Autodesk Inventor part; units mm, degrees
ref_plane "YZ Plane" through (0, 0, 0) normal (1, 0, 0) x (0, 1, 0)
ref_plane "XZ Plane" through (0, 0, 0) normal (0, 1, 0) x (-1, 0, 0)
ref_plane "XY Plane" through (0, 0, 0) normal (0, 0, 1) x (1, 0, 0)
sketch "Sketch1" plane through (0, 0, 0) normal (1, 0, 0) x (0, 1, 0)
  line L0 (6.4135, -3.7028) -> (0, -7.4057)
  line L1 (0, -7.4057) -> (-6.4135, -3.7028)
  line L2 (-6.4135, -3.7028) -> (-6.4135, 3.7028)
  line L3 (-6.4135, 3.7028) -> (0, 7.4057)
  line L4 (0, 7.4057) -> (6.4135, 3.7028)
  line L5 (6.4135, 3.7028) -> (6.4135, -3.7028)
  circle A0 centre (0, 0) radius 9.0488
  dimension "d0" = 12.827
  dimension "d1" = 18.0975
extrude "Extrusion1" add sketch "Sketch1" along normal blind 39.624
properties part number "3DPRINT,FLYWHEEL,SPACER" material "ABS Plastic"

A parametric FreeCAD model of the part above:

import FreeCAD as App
import Part
import Sketcher
from FreeCAD import Vector
Q = App.Units.Quantity

doc = App.newDocument("Part")
body = doc.addObject("PartDesign::Body", "Body")

# Sketch on YZ plane
sketch1 = doc.addObject("Sketcher::SketchObject", "Sketch")
body.addObject(sketch1)
sketch1.AttachmentSupport = (doc.YZ_Plane, [""])
sketch1.MapMode = "FlatFace"
sketch1.addGeometry([
    Part.Circle(Vector(0, 0, 0), Vector(0, 0, 1), 9),  # 0
    Part.LineSegment(Vector(6, 4, 0), Vector(6, -4, 0)),  # 1
    Part.LineSegment(Vector(6, -4, 0), Vector(0, -7, 0)),  # 2
    Part.LineSegment(Vector(0, -7, 0), Vector(-6, -4, 0)),  # 3
    Part.LineSegment(Vector(-6, -4, 0), Vector(-6, 4, 0)),  # 4
    Part.LineSegment(Vector(-6, 4, 0), Vector(0, 7, 0)),  # 5
    Part.LineSegment(Vector(0, 7, 0), Vector(6, 4, 0)),  # 6
], False)
sketch1.addConstraint([
    Sketcher.Constraint("Coincident", 1, 2, 2, 1),
    Sketcher.Constraint("Coincident", 2, 2, 3, 1),
    Sketcher.Constraint("Coincident", 3, 2, 4, 1),
    Sketcher.Constraint("Coincident", 4, 2, 5, 1),
    Sketcher.Constraint("Coincident", 5, 2, 6, 1),
    Sketcher.Constraint("Coincident", 6, 2, 1, 1),
    Sketcher.Constraint("Vertical", 1),
    Sketcher.Constraint("Vertical", 4),
    Sketcher.Constraint("Coincident", 0, 3, -1, 1),
    Sketcher.Constraint("Symmetric", 1, 2, 4, 2, -1, 1),
    Sketcher.Constraint("Symmetric", 2, 2, 5, 2, -1, 1),
    Sketcher.Constraint("PointOnObject", 2, 2, -2),
    Sketcher.Constraint("Parallel", 3, 6),
    Sketcher.Constraint("Horizontal", 1, 2, 3, 2),
    Sketcher.Constraint("Diameter", 0, Q("0.7125 in")),
    Sketcher.Constraint("Angle", 2, Q("-149.9996 deg")),
    Sketcher.Constraint("DistanceX", 3, 2, 1, 2, Q("0.505 in")),
    Sketcher.Constraint("DistanceY", 1, 2, 1, 1, 7.4056),
])
pad1 = doc.addObject("PartDesign::Pad", "Pad")
body.addObject(pad1)
pad1.Profile = sketch1
pad1.Length = Q("1.56 in")

doc.recompute()
